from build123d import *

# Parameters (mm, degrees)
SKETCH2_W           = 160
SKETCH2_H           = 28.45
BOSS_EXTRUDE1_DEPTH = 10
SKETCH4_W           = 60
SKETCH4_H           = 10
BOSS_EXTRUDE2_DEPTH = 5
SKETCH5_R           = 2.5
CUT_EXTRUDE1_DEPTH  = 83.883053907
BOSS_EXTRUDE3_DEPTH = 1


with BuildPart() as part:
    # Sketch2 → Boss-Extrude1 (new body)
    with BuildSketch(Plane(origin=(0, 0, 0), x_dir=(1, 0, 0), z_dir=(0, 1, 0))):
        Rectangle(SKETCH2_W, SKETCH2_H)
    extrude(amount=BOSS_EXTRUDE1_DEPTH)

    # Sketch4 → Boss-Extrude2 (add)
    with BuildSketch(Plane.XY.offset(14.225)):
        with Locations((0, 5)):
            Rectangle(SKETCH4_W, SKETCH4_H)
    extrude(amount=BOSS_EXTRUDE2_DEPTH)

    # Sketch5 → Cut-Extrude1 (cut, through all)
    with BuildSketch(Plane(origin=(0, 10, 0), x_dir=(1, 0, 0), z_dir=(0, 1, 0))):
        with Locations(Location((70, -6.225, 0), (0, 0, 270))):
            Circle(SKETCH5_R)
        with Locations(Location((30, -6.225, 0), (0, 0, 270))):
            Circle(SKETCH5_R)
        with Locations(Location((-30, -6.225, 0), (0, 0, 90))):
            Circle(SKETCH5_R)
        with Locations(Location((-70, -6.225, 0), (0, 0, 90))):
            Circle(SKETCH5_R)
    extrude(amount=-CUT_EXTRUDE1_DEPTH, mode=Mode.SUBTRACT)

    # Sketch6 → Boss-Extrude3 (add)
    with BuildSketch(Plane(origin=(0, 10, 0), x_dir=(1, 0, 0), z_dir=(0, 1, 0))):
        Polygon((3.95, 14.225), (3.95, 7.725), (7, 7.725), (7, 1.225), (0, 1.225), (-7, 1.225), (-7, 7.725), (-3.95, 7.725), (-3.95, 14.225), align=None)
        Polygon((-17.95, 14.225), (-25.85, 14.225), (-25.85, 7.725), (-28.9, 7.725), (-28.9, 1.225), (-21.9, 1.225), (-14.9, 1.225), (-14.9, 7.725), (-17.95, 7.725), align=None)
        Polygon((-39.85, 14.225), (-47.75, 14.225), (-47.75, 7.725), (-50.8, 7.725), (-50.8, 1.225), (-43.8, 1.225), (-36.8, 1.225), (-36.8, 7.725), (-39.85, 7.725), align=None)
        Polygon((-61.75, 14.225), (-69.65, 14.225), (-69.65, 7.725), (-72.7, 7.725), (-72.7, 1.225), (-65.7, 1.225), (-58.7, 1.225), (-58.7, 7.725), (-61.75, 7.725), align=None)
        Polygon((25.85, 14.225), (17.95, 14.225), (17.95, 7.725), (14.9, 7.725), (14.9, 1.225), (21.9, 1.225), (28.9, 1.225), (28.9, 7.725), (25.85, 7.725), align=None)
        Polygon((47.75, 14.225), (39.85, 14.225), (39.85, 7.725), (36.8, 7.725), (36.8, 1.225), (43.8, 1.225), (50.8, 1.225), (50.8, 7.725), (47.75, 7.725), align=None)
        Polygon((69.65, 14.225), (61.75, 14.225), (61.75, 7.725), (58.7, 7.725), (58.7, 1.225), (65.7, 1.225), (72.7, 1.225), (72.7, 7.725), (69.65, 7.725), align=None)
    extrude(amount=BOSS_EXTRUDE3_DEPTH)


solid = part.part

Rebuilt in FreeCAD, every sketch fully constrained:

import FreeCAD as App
import Part
import Sketcher
Q = App.Units.Quantity

doc = App.newDocument("Part")
params = doc.addObject("Spreadsheet::Sheet", "Params")
for row, (alias, value) in enumerate([
    ("sketch1_width", "160 mm"),
    ("sketch1_height", "28.45 mm"),
    ("pad1_length", "10 mm"),
    ("sketch2_width", "60 mm"),
    ("sketch2_height", "10 mm"),
    ("pad2_length", "5 mm"),
    ("sketch3_diameter", "5 mm"),
    ("sketch4_width", "14 mm"),
    ("sketch4_width2", "7.9 mm"),
    ("sketch4_height", "6.5 mm"),
    ("pad3_length", "1 mm"),
], start=1):
    params.set(f"A{row}", alias)
    params.set(f"B{row}", "=" + value)
    params.setAlias(f"B{row}", alias)

body = doc.addObject("PartDesign::Body", "Body")

# Sketch on XZ plane
sketch1 = doc.addObject("Sketcher::SketchObject", "Sketch")
body.addObject(sketch1)
sketch1.AttachmentSupport = (doc.XZ_Plane, [""])
sketch1.MapMode = "FlatFace"
sketch1.addGeometry(Part.LineSegment(App.Vector(-80, -14, 0), App.Vector(-80, 14, 0)), False)
sketch1.addGeometry(Part.LineSegment(App.Vector(-80, 14, 0), App.Vector(80, 14, 0)), False)
sketch1.addGeometry(Part.LineSegment(App.Vector(80, 14, 0), App.Vector(80, -14, 0)), False)
sketch1.addGeometry(Part.LineSegment(App.Vector(80, -14, 0), App.Vector(-80, -14, 0)), False)
sketch1.addConstraint(Sketcher.Constraint("Coincident", 0, 2, 1, 1))
sketch1.addConstraint(Sketcher.Constraint("Coincident", 1, 2, 2, 1))
sketch1.addConstraint(Sketcher.Constraint("Coincident", 2, 2, 3, 1))
sketch1.addConstraint(Sketcher.Constraint("Coincident", 3, 2, 0, 1))
sketch1.addConstraint(Sketcher.Constraint("Vertical", 0))
sketch1.addConstraint(Sketcher.Constraint("Horizontal", 1))
sketch1.addConstraint(Sketcher.Constraint("Vertical", 2))
sketch1.addConstraint(Sketcher.Constraint("Horizontal", 3))
sketch1.addConstraint(Sketcher.Constraint("Symmetric", 0, 2, 2, 2, -1, 1))
sketch1.addConstraint(Sketcher.Constraint("DistanceX", 1, 1, 1, 2, Q("160 mm")))
sketch1.addConstraint(Sketcher.Constraint("DistanceY", 0, 1, 0, 2, Q("28.45 mm")))
sketch1.setExpression("Constraints[9]", "Params.sketch1_width")
sketch1.setExpression("Constraints[10]", "Params.sketch1_height")
pad1 = doc.addObject("PartDesign::Pad", "Pad")
body.addObject(pad1)
pad1.Profile = sketch1
pad1.setExpression("Length", "Params.pad1_length")
pad1.Reversed = True

# Sketch on XY plane
sketch2 = doc.addObject("Sketcher::SketchObject", "Sketch001")
body.addObject(sketch2)
sketch2.AttachmentSupport = (doc.XY_Plane, [""])
sketch2.MapMode = "FlatFace"
sketch2.AttachmentOffset = App.Placement(App.Vector(0, 0, 14.225), App.Rotation())
sketch2.addGeometry(Part.LineSegment(App.Vector(-30, 10, 0), App.Vector(-30, 0, 0)), False)
sketch2.addGeometry(Part.LineSegment(App.Vector(-30, 0, 0), App.Vector(30, 0, 0)), False)
sketch2.addGeometry(Part.LineSegment(App.Vector(30, 0, 0), App.Vector(30, 10, 0)), False)
sketch2.addGeometry(Part.LineSegment(App.Vector(30, 10, 0), App.Vector(-30, 10, 0)), False)
sketch2.addConstraint(Sketcher.Constraint("Coincident", 0, 2, 1, 1))
sketch2.addConstraint(Sketcher.Constraint("Coincident", 1, 2, 2, 1))
sketch2.addConstraint(Sketcher.Constraint("Coincident", 2, 2, 3, 1))
sketch2.addConstraint(Sketcher.Constraint("Coincident", 3, 2, 0, 1))
sketch2.addConstraint(Sketcher.Constraint("Vertical", 0))
sketch2.addConstraint(Sketcher.Constraint("Horizontal", 1))
sketch2.addConstraint(Sketcher.Constraint("Vertical", 2))
sketch2.addConstraint(Sketcher.Constraint("Horizontal", 3))
sketch2.addConstraint(Sketcher.Constraint("Symmetric", 0, 2, 1, 2, -1, 1))
sketch2.addConstraint(Sketcher.Constraint("DistanceX", 1, 1, 1, 2, Q("60 mm")))
sketch2.addConstraint(Sketcher.Constraint("DistanceY", 0, 2, 0, 1, Q("10 mm")))
sketch2.setExpression("Constraints[9]", "Params.sketch2_width")
sketch2.setExpression("Constraints[10]", "Params.sketch2_height")
pad2 = doc.addObject("PartDesign::Pad", "Pad001")
body.addObject(pad2)
pad2.Profile = sketch2
pad2.setExpression("Length", "Params.pad2_length")

# Sketch on XZ plane
sketch3 = doc.addObject("Sketcher::SketchObject", "Sketch002")
body.addObject(sketch3)
sketch3.AttachmentSupport = (doc.XZ_Plane, [""])
sketch3.MapMode = "FlatFace"
sketch3.AttachmentOffset = App.Placement(App.Vector(0, 0, -10), App.Rotation())
sketch3.addGeometry(Part.Circle(App.Vector(70, 6.2, 0), App.Vector(0, 0, 1), 2.5), False)
sketch3.addGeometry(Part.Circle(App.Vector(30, 6.2, 0), App.Vector(0, 0, 1), 2.5), False)
sketch3.addGeometry(Part.Circle(App.Vector(-30, 6.2, 0), App.Vector(0, 0, 1), 2.5), False)
sketch3.addGeometry(Part.Circle(App.Vector(-70, 6.2, 0), App.Vector(0, 0, 1), 2.5), False)
sketch3.addConstraint(Sketcher.Constraint("Equal", 0, 1))
sketch3.addConstraint(Sketcher.Constraint("Equal", 1, 2))
sketch3.addConstraint(Sketcher.Constraint("Equal", 2, 3))
sketch3.addConstraint(Sketcher.Constraint("Symmetric", 1, 3, 2, 3, -2))
sketch3.addConstraint(Sketcher.Constraint("Symmetric", 0, 3, 3, 3, -2))
sketch3.addConstraint(Sketcher.Constraint("Horizontal", 0, 3, 1, 3))
sketch3.addConstraint(Sketcher.Constraint("Diameter", 0, Q("5 mm")))
sketch3.addConstraint(Sketcher.Constraint("DistanceX", -1, 1, 0, 3, Q("70 mm")))
sketch3.addConstraint(Sketcher.Constraint("DistanceX", -1, 1, 1, 3, Q("30 mm")))
sketch3.addConstraint(Sketcher.Constraint("DistanceY", -1, 1, 0, 3, Q("6.225 mm")))
sketch3.setExpression("Constraints[6]", "Params.sketch3_diameter")
pocket1 = doc.addObject("PartDesign::Pocket", "Pocket")
body.addObject(pocket1)
pocket1.Profile = sketch3
pocket1.Type = "ThroughAll"
pocket1.Reversed = True

# Sketch on XZ plane
sketch4 = doc.addObject("Sketcher::SketchObject", "Sketch003")
body.addObject(sketch4)
sketch4.AttachmentSupport = (doc.XZ_Plane, [""])
sketch4.MapMode = "FlatFace"
sketch4.AttachmentOffset = App.Placement(App.Vector(0, 0, -10), App.Rotation())
sketch4.addGeometry(Part.LineSegment(App.Vector(4, -7.7, 0), App.Vector(4, -14.2, 0)), False)
sketch4.addGeometry(Part.LineSegment(App.Vector(4, -14.2, 0), App.Vector(-4, -14.2, 0)), False)
sketch4.addGeometry(Part.LineSegment(App.Vector(-4, -14.2, 0), App.Vector(-4, -7.7, 0)), False)
sketch4.addGeometry(Part.LineSegment(App.Vector(-4, -7.7, 0), App.Vector(-7, -7.7, 0)), False)
sketch4.addGeometry(Part.LineSegment(App.Vector(-7, -7.7, 0), App.Vector(-7, -1.2, 0)), False)
sketch4.addGeometry(Part.LineSegment(App.Vector(-7, -1.2, 0), App.Vector(7, -1.2, 0)), False)
sketch4.addGeometry(Part.LineSegment(App.Vector(7, -1.2, 0), App.Vector(7, -7.7, 0)), False)
sketch4.addGeometry(Part.LineSegment(App.Vector(7, -7.7, 0), App.Vector(4, -7.7, 0)), False)
sketch4.addGeometry(Part.LineSegment(App.Vector(-17.9, -14.2, 0), App.Vector(-25.9, -14.2, 0)), False)
sketch4.addGeometry(Part.LineSegment(App.Vector(-25.9, -14.2, 0), App.Vector(-25.9, -7.7, 0)), False)
sketch4.addGeometry(Part.LineSegment(App.Vector(-25.9, -7.7, 0), App.Vector(-28.9, -7.7, 0)), False)
sketch4.addGeometry(Part.LineSegment(App.Vector(-28.9, -7.7, 0), App.Vector(-28.9, -1.2, 0)), False)
sketch4.addGeometry(Part.LineSegment(App.Vector(-28.9, -1.2, 0), App.Vector(-14.9, -1.2, 0)), False)
sketch4.addGeometry(Part.LineSegment(App.Vector(-14.9, -1.2, 0), App.Vector(-14.9, -7.7, 0)), False)
sketch4.addGeometry(Part.LineSegment(App.Vector(-14.9, -7.7, 0), App.Vector(-17.9, -7.7, 0)), False)
sketch4.addGeometry(Part.LineSegment(App.Vector(-17.9, -7.7, 0), App.Vector(-17.9, -14.2, 0)), False)
sketch4.addGeometry(Part.LineSegment(App.Vector(-39.9, -14.2, 0), App.Vector(-47.8, -14.2, 0)), False)
sketch4.addGeometry(Part.LineSegment(App.Vector(-47.8, -14.2, 0), App.Vector(-47.8, -7.7, 0)), False)
sketch4.addGeometry(Part.LineSegment(App.Vector(-47.8, -7.7, 0), App.Vector(-50.8, -7.7, 0)), False)
sketch4.addGeometry(Part.LineSegment(App.Vector(-50.8, -7.7, 0), App.Vector(-50.8, -1.2, 0)), False)
sketch4.addGeometry(Part.LineSegment(App.Vector(-50.8, -1.2, 0), App.Vector(-36.8, -1.2, 0)), False)
sketch4.addGeometry(Part.LineSegment(App.Vector(-36.8, -1.2, 0), App.Vector(-36.8, -7.7, 0)), False)
sketch4.addGeometry(Part.LineSegment(App.Vector(-36.8, -7.7, 0), App.Vector(-39.9, -7.7, 0)), False)
sketch4.addGeometry(Part.LineSegment(App.Vector(-39.9, -7.7, 0), App.Vector(-39.9, -14.2, 0)), False)
sketch4.addGeometry(Part.LineSegment(App.Vector(-61.8, -14.2, 0), App.Vector(-69.7, -14.2, 0)), False)
sketch4.addGeometry(Part.LineSegment(App.Vector(-69.7, -14.2, 0), App.Vector(-69.7, -7.7, 0)), False)
sketch4.addGeometry(Part.LineSegment(App.Vector(-69.7, -7.7, 0), App.Vector(-72.7, -7.7, 0)), False)
sketch4.addGeometry(Part.LineSegment(App.Vector(-72.7, -7.7, 0), App.Vector(-72.7, -1.2, 0)), False)
sketch4.addGeometry(Part.LineSegment(App.Vector(-72.7, -1.2, 0), App.Vector(-58.7, -1.2, 0)), False)
sketch4.addGeometry(Part.LineSegment(App.Vector(-58.7, -1.2, 0), App.Vector(-58.7, -7.7, 0)), False)
sketch4.addGeometry(Part.LineSegment(App.Vector(-58.7, -7.7, 0), App.Vector(-61.8, -7.7, 0)), False)
sketch4.addGeometry(Part.LineSegment(App.Vector(-61.8, -7.7, 0), App.Vector(-61.8, -14.2, 0)), False)
sketch4.addGeometry(Part.LineSegment(App.Vector(25.9, -14.2, 0), App.Vector(17.9, -14.2, 0)), False)
sketch4.addGeometry(Part.LineSegment(App.Vector(17.9, -14.2, 0), App.Vector(17.9, -7.7, 0)), False)
sketch4.addGeometry(Part.LineSegment(App.Vector(17.9, -7.7, 0), App.Vector(14.9, -7.7, 0)), False)
sketch4.addGeometry(Part.LineSegment(App.Vector(14.9, -7.7, 0), App.Vector(14.9, -1.2, 0)), False)
sketch4.addGeometry(Part.LineSegment(App.Vector(14.9, -1.2, 0), App.Vector(28.9, -1.2, 0)), False)
sketch4.addGeometry(Part.LineSegment(App.Vector(28.9, -1.2, 0), App.Vector(28.9, -7.7, 0)), False)
sketch4.addGeometry(Part.LineSegment(App.Vector(28.9, -7.7, 0), App.Vector(25.9, -7.7, 0)), False)
sketch4.addGeometry(Part.LineSegment(App.Vector(25.9, -7.7, 0), App.Vector(25.9, -14.2, 0)), False)
sketch4.addGeometry(Part.LineSegment(App.Vector(47.8, -14.2, 0), App.Vector(39.9, -14.2, 0)), False)
sketch4.addGeometry(Part.LineSegment(App.Vector(39.9, -14.2, 0), App.Vector(39.9, -7.7, 0)), False)
sketch4.addGeometry(Part.LineSegment(App.Vector(39.9, -7.7, 0), App.Vector(36.8, -7.7, 0)), False)
sketch4.addGeometry(Part.LineSegment(App.Vector(36.8, -7.7, 0), App.Vector(36.8, -1.2, 0)), False)
sketch4.addGeometry(Part.LineSegment(App.Vector(36.8, -1.2, 0), App.Vector(50.8, -1.2, 0)), False)
sketch4.addGeometry(Part.LineSegment(App.Vector(50.8, -1.2, 0), App.Vector(50.8, -7.7, 0)), False)
sketch4.addGeometry(Part.LineSegment(App.Vector(50.8, -7.7, 0), App.Vector(47.8, -7.7, 0)), False)
sketch4.addGeometry(Part.LineSegment(App.Vector(47.8, -7.7, 0), App.Vector(47.8, -14.2, 0)), False)
sketch4.addGeometry(Part.LineSegment(App.Vector(69.7, -14.2, 0), App.Vector(61.8, -14.2, 0)), False)
sketch4.addGeometry(Part.LineSegment(App.Vector(61.8, -14.2, 0), App.Vector(61.8, -7.7, 0)), False)
sketch4.addGeometry(Part.LineSegment(App.Vector(61.8, -7.7, 0), App.Vector(58.7, -7.7, 0)), False)
sketch4.addGeometry(Part.LineSegment(App.Vector(58.7, -7.7, 0), App.Vector(58.7, -1.2, 0)), False)
sketch4.addGeometry(Part.LineSegment(App.Vector(58.7, -1.2, 0), App.Vector(72.7, -1.2, 0)), False)
sketch4.addGeometry(Part.LineSegment(App.Vector(72.7, -1.2, 0), App.Vector(72.7, -7.7, 0)), False)
sketch4.addGeometry(Part.LineSegment(App.Vector(72.7, -7.7, 0), App.Vector(69.7, -7.7, 0)), False)
sketch4.addGeometry(Part.LineSegment(App.Vector(69.7, -7.7, 0), App.Vector(69.7, -14.2, 0)), False)
sketch4.addConstraint(Sketcher.Constraint("Coincident", 0, 2, 1, 1))
sketch4.addConstraint(Sketcher.Constraint("Coincident", 1, 2, 2, 1))
sketch4.addConstraint(Sketcher.Constraint("Coincident", 2, 2, 3, 1))
sketch4.addConstraint(Sketcher.Constraint("Coincident", 3, 2, 4, 1))
sketch4.addConstraint(Sketcher.Constraint("Coincident", 4, 2, 5, 1))
sketch4.addConstraint(Sketcher.Constraint("Coincident", 5, 2, 6, 1))
sketch4.addConstraint(Sketcher.Constraint("Coincident", 6, 2, 7, 1))
sketch4.addConstraint(Sketcher.Constraint("Coincident", 7, 2, 0, 1))
sketch4.addConstraint(Sketcher.Constraint("Coincident", 8, 2, 9, 1))
sketch4.addConstraint(Sketcher.Constraint("Coincident", 9, 2, 10, 1))
sketch4.addConstraint(Sketcher.Constraint("Coincident", 10, 2, 11, 1))
sketch4.addConstraint(Sketcher.Constraint("Coincident", 11, 2, 12, 1))
sketch4.addConstraint(Sketcher.Constraint("Coincident", 12, 2, 13, 1))
sketch4.addConstraint(Sketcher.Constraint("Coincident", 13, 2, 14, 1))
sketch4.addConstraint(Sketcher.Constraint("Coincident", 14, 2, 15, 1))
sketch4.addConstraint(Sketcher.Constraint("Coincident", 15, 2, 8, 1))
sketch4.addConstraint(Sketcher.Constraint("Coincident", 16, 2, 17, 1))
sketch4.addConstraint(Sketcher.Constraint("Coincident", 17, 2, 18, 1))
sketch4.addConstraint(Sketcher.Constraint("Coincident", 18, 2, 19, 1))
sketch4.addConstraint(Sketcher.Constraint("Coincident", 19, 2, 20, 1))
sketch4.addConstraint(Sketcher.Constraint("Coincident", 20, 2, 21, 1))
sketch4.addConstraint(Sketcher.Constraint("Coincident", 21, 2, 22, 1))
sketch4.addConstraint(Sketcher.Constraint("Coincident", 22, 2, 23, 1))
sketch4.addConstraint(Sketcher.Constraint("Coincident", 23, 2, 16, 1))
sketch4.addConstraint(Sketcher.Constraint("Coincident", 24, 2, 25, 1))
sketch4.addConstraint(Sketcher.Constraint("Coincident", 25, 2, 26, 1))
sketch4.addConstraint(Sketcher.Constraint("Coincident", 26, 2, 27, 1))
sketch4.addConstraint(Sketcher.Constraint("Coincident", 27, 2, 28, 1))
sketch4.addConstraint(Sketcher.Constraint("Coincident", 28, 2, 29, 1))
sketch4.addConstraint(Sketcher.Constraint("Coincident", 29, 2, 30, 1))
sketch4.addConstraint(Sketcher.Constraint("Coincident", 30, 2, 31, 1))
sketch4.addConstraint(Sketcher.Constraint("Coincident", 31, 2, 24, 1))
sketch4.addConstraint(Sketcher.Constraint("Coincident", 32, 2, 33, 1))
sketch4.addConstraint(Sketcher.Constraint("Coincident", 33, 2, 34, 1))
sketch4.addConstraint(Sketcher.Constraint("Coincident", 34, 2, 35, 1))
sketch4.addConstraint(Sketcher.Constraint("Coincident", 35, 2, 36, 1))
sketch4.addConstraint(Sketcher.Constraint("Coincident", 36, 2, 37, 1))
sketch4.addConstraint(Sketcher.Constraint("Coincident", 37, 2, 38, 1))
sketch4.addConstraint(Sketcher.Constraint("Coincident", 38, 2, 39, 1))
sketch4.addConstraint(Sketcher.Constraint("Coincident", 39, 2, 32, 1))
sketch4.addConstraint(Sketcher.Constraint("Coincident", 40, 2, 41, 1))
sketch4.addConstraint(Sketcher.Constraint("Coincident", 41, 2, 42, 1))
sketch4.addConstraint(Sketcher.Constraint("Coincident", 42, 2, 43, 1))
sketch4.addConstraint(Sketcher.Constraint("Coincident", 43, 2, 44, 1))
sketch4.addConstraint(Sketcher.Constraint("Coincident", 44, 2, 45, 1))
sketch4.addConstraint(Sketcher.Constraint("Coincident", 45, 2, 46, 1))
sketch4.addConstraint(Sketcher.Constraint("Coincident", 46, 2, 47, 1))
sketch4.addConstraint(Sketcher.Constraint("Coincident", 47, 2, 40, 1))
sketch4.addConstraint(Sketcher.Constraint("Coincident", 48, 2, 49, 1))
sketch4.addConstraint(Sketcher.Constraint("Coincident", 49, 2, 50, 1))
sketch4.addConstraint(Sketcher.Constraint("Coincident", 50, 2, 51, 1))
sketch4.addConstraint(Sketcher.Constraint("Coincident", 51, 2, 52, 1))
sketch4.addConstraint(Sketcher.Constraint("Coincident", 52, 2, 53, 1))
sketch4.addConstraint(Sketcher.Constraint("Coincident", 53, 2, 54, 1))
sketch4.addConstraint(Sketcher.Constraint("Coincident", 54, 2, 55, 1))
sketch4.addConstraint(Sketcher.Constraint("Coincident", 55, 2, 48, 1))
sketch4.addConstraint(Sketcher.Constraint("Vertical", 0))
sketch4.addConstraint(Sketcher.Constraint("Horizontal", 1))
sketch4.addConstraint(Sketcher.Constraint("Vertical", 2))
sketch4.addConstraint(Sketcher.Constraint("Horizontal", 3))
sketch4.addConstraint(Sketcher.Constraint("Vertical", 4))
sketch4.addConstraint(Sketcher.Constraint("Horizontal", 5))
sketch4.addConstraint(Sketcher.Constraint("Vertical", 6))
sketch4.addConstraint(Sketcher.Constraint("Horizontal", 7))
sketch4.addConstraint(Sketcher.Constraint("Horizontal", 8))
sketch4.addConstraint(Sketcher.Constraint("Vertical", 9))
sketch4.addConstraint(Sketcher.Constraint("Horizontal", 10))
sketch4.addConstraint(Sketcher.Constraint("Vertical", 11))
sketch4.addConstraint(Sketcher.Constraint("Horizontal", 12))
sketch4.addConstraint(Sketcher.Constraint("Vertical", 13))
sketch4.addConstraint(Sketcher.Constraint("Horizontal", 14))
sketch4.addConstraint(Sketcher.Constraint("Vertical", 15))
sketch4.addConstraint(Sketcher.Constraint("Horizontal", 16))
sketch4.addConstraint(Sketcher.Constraint("Vertical", 17))
sketch4.addConstraint(Sketcher.Constraint("Horizontal", 18))
sketch4.addConstraint(Sketcher.Constraint("Vertical", 19))
sketch4.addConstraint(Sketcher.Constraint("Horizontal", 20))
sketch4.addConstraint(Sketcher.Constraint("Vertical", 21))
sketch4.addConstraint(Sketcher.Constraint("Horizontal", 22))
sketch4.addConstraint(Sketcher.Constraint("Vertical", 23))
sketch4.addConstraint(Sketcher.Constraint("Horizontal", 24))
sketch4.addConstraint(Sketcher.Constraint("Vertical", 25))
sketch4.addConstraint(Sketcher.Constraint("Horizontal", 26))
sketch4.addConstraint(Sketcher.Constraint("Vertical", 27))
sketch4.addConstraint(Sketcher.Constraint("Horizontal", 28))
sketch4.addConstraint(Sketcher.Constraint("Vertical", 29))
sketch4.addConstraint(Sketcher.Constraint("Horizontal", 30))
sketch4.addConstraint(Sketcher.Constraint("Vertical", 31))
sketch4.addConstraint(Sketcher.Constraint("Horizontal", 32))
sketch4.addConstraint(Sketcher.Constraint("Vertical", 33))
sketch4.addConstraint(Sketcher.Constraint("Horizontal", 34))
sketch4.addConstraint(Sketcher.Constraint("Vertical", 35))
sketch4.addConstraint(Sketcher.Constraint("Horizontal", 36))
sketch4.addConstraint(Sketcher.Constraint("Vertical", 37))
sketch4.addConstraint(Sketcher.Constraint("Horizontal", 38))
sketch4.addConstraint(Sketcher.Constraint("Vertical", 39))
sketch4.addConstraint(Sketcher.Constraint("Horizontal", 40))
sketch4.addConstraint(Sketcher.Constraint("Vertical", 41))
sketch4.addConstraint(Sketcher.Constraint("Horizontal", 42))
sketch4.addConstraint(Sketcher.Constraint("Vertical", 43))
sketch4.addConstraint(Sketcher.Constraint("Horizontal", 44))
sketch4.addConstraint(Sketcher.Constraint("Vertical", 45))
sketch4.addConstraint(Sketcher.Constraint("Horizontal", 46))
sketch4.addConstraint(Sketcher.Constraint("Vertical", 47))
sketch4.addConstraint(Sketcher.Constraint("Horizontal", 48))
sketch4.addConstraint(Sketcher.Constraint("Vertical", 49))
sketch4.addConstraint(Sketcher.Constraint("Horizontal", 50))
sketch4.addConstraint(Sketcher.Constraint("Vertical", 51))
sketch4.addConstraint(Sketcher.Constraint("Horizontal", 52))
sketch4.addConstraint(Sketcher.Constraint("Vertical", 53))
sketch4.addConstraint(Sketcher.Constraint("Horizontal", 54))
sketch4.addConstraint(Sketcher.Constraint("Vertical", 55))
sketch4.addConstraint(Sketcher.Constraint("Symmetric", 3, 2, 6, 2, -2))
sketch4.addConstraint(Sketcher.Constraint("Symmetric", 15, 2, 32, 2, -2))
sketch4.addConstraint(Sketcher.Constraint("Symmetric", 13, 2, 34, 2, -2))
sketch4.addConstraint(Sketcher.Constraint("Symmetric", 11, 2, 36, 2, -2))
sketch4.addConstraint(Sketcher.Constraint("Symmetric", 9, 2, 38, 2, -2))
sketch4.addConstraint(Sketcher.Constraint("Symmetric", 23, 2, 40, 2, -2))
sketch4.addConstraint(Sketcher.Constraint("Symmetric", 21, 2, 42, 2, -2))
sketch4.addConstraint(Sketcher.Constraint("Symmetric", 19, 2, 44, 2, -2))
sketch4.addConstraint(Sketcher.Constraint("Symmetric", 17, 2, 46, 2, -2))
sketch4.addConstraint(Sketcher.Constraint("Symmetric", 31, 2, 48, 2, -2))
sketch4.addConstraint(Sketcher.Constraint("Symmetric", 29, 2, 50, 2, -2))
sketch4.addConstraint(Sketcher.Constraint("Symmetric", 27, 2, 52, 2, -2))
sketch4.addConstraint(Sketcher.Constraint("Symmetric", 25, 2, 54, 2, -2))
sketch4.addConstraint(Sketcher.Constraint("Horizontal", 1, 2, 8, 2))
sketch4.addConstraint(Sketcher.Constraint("Horizontal", 7, 2, 9, 2))
sketch4.addConstraint(Sketcher.Constraint("Horizontal", 5, 2, 11, 2))
sketch4.addConstraint(Sketcher.Constraint("Horizontal", 10, 2, 13, 2))
sketch4.addConstraint(Sketcher.Constraint("Horizontal", 15, 2, 16, 2))
sketch4.addConstraint(Sketcher.Constraint("Horizontal", 14, 2, 17, 2))
sketch4.addConstraint(Sketcher.Constraint("Horizontal", 12, 2, 19, 2))
sketch4.addConstraint(Sketcher.Constraint("Horizontal", 18, 2, 21, 2))
sketch4.addConstraint(Sketcher.Constraint("Horizontal", 23, 2, 24, 2))
sketch4.addConstraint(Sketcher.Constraint("Horizontal", 22, 2, 25, 2))
sketch4.addConstraint(Sketcher.Constraint("Horizontal", 20, 2, 27, 2))
sketch4.addConstraint(Sketcher.Constraint("Horizontal", 26, 2, 29, 2))
sketch4.addConstraint(Sketcher.Constraint("Equal", 3, 7))
sketch4.addConstraint(Sketcher.Constraint("Equal", 1, 8))
sketch4.addConstraint(Sketcher.Constraint("Equal", 7, 10))
sketch4.addConstraint(Sketcher.Constraint("Equal", 5, 12))
sketch4.addConstraint(Sketcher.Constraint("Equal", 8, 16))
sketch4.addConstraint(Sketcher.Constraint("Equal", 14, 18))
sketch4.addConstraint(Sketcher.Constraint("Equal", 12, 20))
sketch4.addConstraint(Sketcher.Constraint("Equal", 16, 24))
sketch4.addConstraint(Sketcher.Constraint("Equal", 22, 26))
sketch4.addConstraint(Sketcher.Constraint("Equal", 20, 28))
sketch4.addConstraint(Sketcher.Constraint("Equal", 2, 4))
sketch4.addConstraint(Sketcher.Constraint("DistanceX", 5, 1, 5, 2, Q("14 mm")))
sketch4.addConstraint(Sketcher.Constraint("DistanceX", 1, 2, 1, 1, Q("7.9 mm")))
sketch4.addConstraint(Sketcher.Constraint("DistanceY", 0, 2, 0, 1, Q("6.5 mm")))
sketch4.addConstraint(Sketcher.Constraint("DistanceX", 0, 2, 32, 2, Q("14 mm")))
sketch4.addConstraint(Sketcher.Constraint("DistanceX", 39, 2, 40, 2, Q("14 mm")))
sketch4.addConstraint(Sketcher.Constraint("DistanceX", 47, 2, 48, 2, Q("14 mm")))
sketch4.addConstraint(Sketcher.Constraint("DistanceY", 0, 2, -1, 1, Q("14.225 mm")))
sketch4.setExpression("Constraints[148]", "Params.sketch4_width")
sketch4.setExpression("Constraints[149]", "Params.sketch4_width2")
sketch4.setExpression("Constraints[150]", "Params.sketch4_height")
pad3 = doc.addObject("PartDesign::Pad", "Pad002")
body.addObject(pad3)
pad3.Profile = sketch4
pad3.setExpression("Length", "Params.pad3_length")
pad3.Reversed = True

doc.recompute()
